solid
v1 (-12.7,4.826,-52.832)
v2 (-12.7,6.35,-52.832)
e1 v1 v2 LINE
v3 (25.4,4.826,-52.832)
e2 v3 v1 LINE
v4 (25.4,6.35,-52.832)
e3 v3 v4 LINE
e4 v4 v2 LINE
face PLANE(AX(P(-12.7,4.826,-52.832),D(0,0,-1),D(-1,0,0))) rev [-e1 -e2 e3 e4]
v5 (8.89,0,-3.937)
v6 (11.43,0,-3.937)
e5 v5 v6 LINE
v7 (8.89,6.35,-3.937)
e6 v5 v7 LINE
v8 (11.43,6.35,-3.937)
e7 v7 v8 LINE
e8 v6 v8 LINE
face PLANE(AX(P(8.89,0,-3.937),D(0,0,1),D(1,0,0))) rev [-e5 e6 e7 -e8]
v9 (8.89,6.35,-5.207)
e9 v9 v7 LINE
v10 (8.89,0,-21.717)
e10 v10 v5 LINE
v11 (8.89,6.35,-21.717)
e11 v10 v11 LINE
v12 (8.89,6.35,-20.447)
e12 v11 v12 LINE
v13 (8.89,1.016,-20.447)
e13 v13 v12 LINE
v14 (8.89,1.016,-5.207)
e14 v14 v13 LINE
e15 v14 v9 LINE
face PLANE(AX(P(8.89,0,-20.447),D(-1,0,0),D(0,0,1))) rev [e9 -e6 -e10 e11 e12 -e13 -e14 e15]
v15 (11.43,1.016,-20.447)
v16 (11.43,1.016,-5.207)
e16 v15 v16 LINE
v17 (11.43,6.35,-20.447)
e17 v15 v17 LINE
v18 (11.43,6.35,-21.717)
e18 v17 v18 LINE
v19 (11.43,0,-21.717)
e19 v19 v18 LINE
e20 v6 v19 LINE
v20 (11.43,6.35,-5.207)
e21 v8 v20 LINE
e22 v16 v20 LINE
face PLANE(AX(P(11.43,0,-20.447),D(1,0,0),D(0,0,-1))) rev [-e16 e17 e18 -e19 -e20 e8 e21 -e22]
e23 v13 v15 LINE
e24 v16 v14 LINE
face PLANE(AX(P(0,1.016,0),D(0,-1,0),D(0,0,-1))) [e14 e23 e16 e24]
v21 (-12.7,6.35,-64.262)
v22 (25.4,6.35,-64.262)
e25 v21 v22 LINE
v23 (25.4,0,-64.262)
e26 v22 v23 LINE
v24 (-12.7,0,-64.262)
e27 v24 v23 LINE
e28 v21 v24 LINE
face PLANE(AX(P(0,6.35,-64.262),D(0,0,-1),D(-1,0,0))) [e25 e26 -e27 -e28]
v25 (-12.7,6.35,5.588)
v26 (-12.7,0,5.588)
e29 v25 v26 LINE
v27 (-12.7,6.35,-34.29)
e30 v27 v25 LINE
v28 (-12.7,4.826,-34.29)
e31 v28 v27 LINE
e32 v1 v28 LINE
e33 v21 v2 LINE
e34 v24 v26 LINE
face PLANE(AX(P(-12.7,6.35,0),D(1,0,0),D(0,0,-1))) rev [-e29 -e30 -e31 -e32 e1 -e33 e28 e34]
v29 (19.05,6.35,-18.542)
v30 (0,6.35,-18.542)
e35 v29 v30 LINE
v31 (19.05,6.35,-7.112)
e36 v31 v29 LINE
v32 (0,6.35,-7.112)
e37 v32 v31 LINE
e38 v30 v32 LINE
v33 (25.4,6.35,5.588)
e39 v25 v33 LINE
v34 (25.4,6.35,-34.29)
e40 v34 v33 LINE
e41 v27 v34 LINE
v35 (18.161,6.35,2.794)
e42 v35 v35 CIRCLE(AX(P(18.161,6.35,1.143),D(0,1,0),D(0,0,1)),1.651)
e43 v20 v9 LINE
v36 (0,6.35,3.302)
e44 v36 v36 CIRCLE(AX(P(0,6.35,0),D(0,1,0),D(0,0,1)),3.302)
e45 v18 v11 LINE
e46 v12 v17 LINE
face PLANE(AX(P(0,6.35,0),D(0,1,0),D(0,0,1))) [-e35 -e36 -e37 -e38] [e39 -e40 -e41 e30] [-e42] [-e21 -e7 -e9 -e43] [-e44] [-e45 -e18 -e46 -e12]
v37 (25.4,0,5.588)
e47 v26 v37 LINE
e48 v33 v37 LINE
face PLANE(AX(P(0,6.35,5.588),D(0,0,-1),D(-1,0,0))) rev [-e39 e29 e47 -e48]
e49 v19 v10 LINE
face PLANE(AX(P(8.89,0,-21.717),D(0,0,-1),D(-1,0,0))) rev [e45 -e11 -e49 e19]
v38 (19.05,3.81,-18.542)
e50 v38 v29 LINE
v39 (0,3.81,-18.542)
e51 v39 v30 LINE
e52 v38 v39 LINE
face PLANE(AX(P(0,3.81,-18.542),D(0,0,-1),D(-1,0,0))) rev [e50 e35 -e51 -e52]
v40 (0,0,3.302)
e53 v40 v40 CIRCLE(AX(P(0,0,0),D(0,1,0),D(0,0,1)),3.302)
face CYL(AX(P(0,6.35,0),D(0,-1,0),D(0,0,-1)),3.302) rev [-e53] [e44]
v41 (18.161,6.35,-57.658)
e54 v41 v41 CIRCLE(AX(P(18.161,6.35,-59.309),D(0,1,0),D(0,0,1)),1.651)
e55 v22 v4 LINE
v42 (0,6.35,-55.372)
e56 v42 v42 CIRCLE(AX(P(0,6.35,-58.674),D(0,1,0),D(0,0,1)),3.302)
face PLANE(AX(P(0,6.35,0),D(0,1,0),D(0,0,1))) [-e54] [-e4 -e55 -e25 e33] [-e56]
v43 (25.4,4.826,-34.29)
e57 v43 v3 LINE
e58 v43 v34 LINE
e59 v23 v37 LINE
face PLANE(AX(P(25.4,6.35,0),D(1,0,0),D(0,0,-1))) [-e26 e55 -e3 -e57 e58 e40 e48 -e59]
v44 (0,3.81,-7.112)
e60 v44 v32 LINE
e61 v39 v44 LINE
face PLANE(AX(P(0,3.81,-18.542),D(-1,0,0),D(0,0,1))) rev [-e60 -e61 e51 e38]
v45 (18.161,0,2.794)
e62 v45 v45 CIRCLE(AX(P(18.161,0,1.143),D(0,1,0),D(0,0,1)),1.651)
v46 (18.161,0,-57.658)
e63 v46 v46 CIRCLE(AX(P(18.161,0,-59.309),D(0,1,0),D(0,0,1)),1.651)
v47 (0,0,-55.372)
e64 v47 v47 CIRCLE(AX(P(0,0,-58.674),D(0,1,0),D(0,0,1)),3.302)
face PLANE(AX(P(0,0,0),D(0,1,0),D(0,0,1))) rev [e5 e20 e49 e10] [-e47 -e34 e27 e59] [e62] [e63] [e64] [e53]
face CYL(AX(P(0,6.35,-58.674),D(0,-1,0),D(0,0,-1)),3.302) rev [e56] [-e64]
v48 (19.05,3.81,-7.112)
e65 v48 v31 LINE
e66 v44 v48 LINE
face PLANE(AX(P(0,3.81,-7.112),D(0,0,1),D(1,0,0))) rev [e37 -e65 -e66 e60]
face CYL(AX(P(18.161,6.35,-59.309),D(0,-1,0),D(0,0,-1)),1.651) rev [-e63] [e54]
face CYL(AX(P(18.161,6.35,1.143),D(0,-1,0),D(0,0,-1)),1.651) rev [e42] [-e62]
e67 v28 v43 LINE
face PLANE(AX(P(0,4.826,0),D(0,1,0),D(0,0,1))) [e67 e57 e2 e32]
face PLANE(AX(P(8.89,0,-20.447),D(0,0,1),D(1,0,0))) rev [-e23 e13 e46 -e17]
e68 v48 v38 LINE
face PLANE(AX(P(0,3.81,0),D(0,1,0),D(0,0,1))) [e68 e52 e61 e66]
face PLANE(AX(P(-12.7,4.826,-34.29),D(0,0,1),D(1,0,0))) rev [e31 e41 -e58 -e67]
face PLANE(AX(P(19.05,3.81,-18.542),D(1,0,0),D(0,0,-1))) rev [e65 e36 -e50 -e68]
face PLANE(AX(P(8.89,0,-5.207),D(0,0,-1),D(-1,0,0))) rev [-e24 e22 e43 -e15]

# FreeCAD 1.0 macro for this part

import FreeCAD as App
import Part
import Sketcher
Q = App.Units.Quantity

doc = App.newDocument("Part")
body = doc.addObject("PartDesign::Body", "Body")

# Sketch on XZ plane
sketch1 = body.newObject("Sketcher::SketchObject", "Sketch")
sketch1.AttachmentSupport = (doc.getObject("XZ_Plane"), [""])
sketch1.MapMode = "FlatFace"
sketch1.addGeometry(Part.LineSegment(App.Vector(-12.7, -64.3, 0), App.Vector(-12.7, 5.6, 0)), False)
sketch1.addGeometry(Part.LineSegment(App.Vector(-12.7, 5.6, 0), App.Vector(25.4, 5.6, 0)), False)
sketch1.addGeometry(Part.LineSegment(App.Vector(25.4, 5.6, 0), App.Vector(25.4, -64.3, 0)), False)
sketch1.addGeometry(Part.LineSegment(App.Vector(25.4, -64.3, 0), App.Vector(-12.7, -64.3, 0)), False)
sketch1.addGeometry(Part.Circle(App.Vector(0, 0, 0), App.Vector(0, 0, 1), 3.3), False)
sketch1.addGeometry(Part.Circle(App.Vector(18.2, 1.1, 0), App.Vector(0, 0, 1), 1.7), False)
sketch1.addGeometry(Part.Circle(App.Vector(0, -58.7, 0), App.Vector(0, 0, 1), 3.3), False)
sketch1.addGeometry(Part.Circle(App.Vector(18.2, -59.3, 0), App.Vector(0, 0, 1), 1.7), False)
sketch1.addConstraint(Sketcher.Constraint("Coincident", 0, 2, 1, 1))
sketch1.addConstraint(Sketcher.Constraint("Coincident", 1, 2, 2, 1))
sketch1.addConstraint(Sketcher.Constraint("Coincident", 2, 2, 3, 1))
sketch1.addConstraint(Sketcher.Constraint("Coincident", 3, 2, 0, 1))
sketch1.addConstraint(Sketcher.Constraint("Vertical", 0))
sketch1.addConstraint(Sketcher.Constraint("Horizontal", 1))
sketch1.addConstraint(Sketcher.Constraint("Vertical", 2))
sketch1.addConstraint(Sketcher.Constraint("Horizontal", 3))
sketch1.addConstraint(Sketcher.Constraint("Coincident", 4, 3, -1, 1))
sketch1.addConstraint(Sketcher.Constraint("Equal", 4, 6))
sketch1.addConstraint(Sketcher.Constraint("Equal", 5, 7))
sketch1.addConstraint(Sketcher.Constraint("PointOnObject", 6, 3, -2))
sketch1.addConstraint(Sketcher.Constraint("Vertical", 5, 3, 7, 3))
sketch1.addConstraint(Sketcher.Constraint("Diameter", 4, Q("0.26 in")))
sketch1.addConstraint(Sketcher.Constraint("Diameter", 5, Q("0.13 in")))
sketch1.addConstraint(Sketcher.Constraint("DistanceX", 1, 1, 1, 2, Q("1.5 in")))
sketch1.addConstraint(Sketcher.Constraint("DistanceX", -1, 1, 1, 2, Q("1 in")))
sketch1.addConstraint(Sketcher.Constraint("DistanceY", 0, 1, 0, 2, Q("2.75 in")))
sketch1.addConstraint(Sketcher.Constraint("DistanceY", 6, 3, -1, 1, Q("2.31 in")))
sketch1.addConstraint(Sketcher.Constraint("DistanceY", -1, 1, 0, 2, Q("0.22 in")))
sketch1.addConstraint(Sketcher.Constraint("DistanceY", 7, 3, 5, 3, Q("2.38 in")))
sketch1.addConstraint(Sketcher.Constraint("DistanceX", -1, 1, 5, 3, Q("0.715 in")))
sketch1.addConstraint(Sketcher.Constraint("DistanceY", -1, 1, 5, 3, Q("0.045 in")))
pad1 = body.newObject("PartDesign::Pad", "Pad")
pad1.Profile = sketch1
pad1.Length = Q("0.25 in")
pad1.Reversed = True

# Sketch on XZ plane
sketch2 = body.newObject("Sketcher::SketchObject", "Sketch001")
sketch2.AttachmentSupport = (doc.getObject("XZ_Plane"), [""])
sketch2.MapMode = "FlatFace"
sketch2.AttachmentOffset = App.Placement(App.Vector(0, 0, -0.25 * 25.4), App.Rotation())
sketch2.addGeometry(Part.LineSegment(App.Vector(0, -19, 0), App.Vector(0, -7, 0)), False)
sketch2.addGeometry(Part.LineSegment(App.Vector(0, -7, 0), App.Vector(19, -7, 0)), False)
sketch2.addGeometry(Part.LineSegment(App.Vector(19, -7, 0), App.Vector(19, -19, 0)), False)
sketch2.addGeometry(Part.LineSegment(App.Vector(19, -19, 0), App.Vector(0, -19, 0)), False)
sketch2.addConstraint(Sketcher.Constraint("Coincident", 0, 2, 1, 1))
sketch2.addConstraint(Sketcher.Constraint("Coincident", 1, 2, 2, 1))
sketch2.addConstraint(Sketcher.Constraint("Coincident", 2, 2, 3, 1))
sketch2.addConstraint(Sketcher.Constraint("Coincident", 3, 2, 0, 1))
sketch2.addConstraint(Sketcher.Constraint("Vertical", 0))
sketch2.addConstraint(Sketcher.Constraint("Horizontal", 1))
sketch2.addConstraint(Sketcher.Constraint("Vertical", 2))
sketch2.addConstraint(Sketcher.Constraint("Horizontal", 3))
sketch2.addConstraint(Sketcher.Constraint("PointOnObject", 0, 2, -2))
sketch2.addConstraint(Sketcher.Constraint("DistanceX", 1, 1, 1, 2, Q("0.75 in")))
sketch2.addConstraint(Sketcher.Constraint("DistanceY", 0, 1, 0, 2, Q("0.45 in")))
sketch2.addConstraint(Sketcher.Constraint("DistanceY", 0, 2, -1, 1, Q("0.28 in")))
pocket1 = body.newObject("PartDesign::Pocket", "Pocket")
pocket1.Profile = sketch2
pocket1.Length = Q("0.1 in")
pocket1.Reversed = True

# Sketch on XZ plane
sketch3 = body.newObject("Sketcher::SketchObject", "Sketch002")
sketch3.AttachmentSupport = (doc.getObject("XZ_Plane"), [""])
sketch3.MapMode = "FlatFace"
sketch3.AttachmentOffset = App.Placement(App.Vector(0, 0, -0.25 * 25.4), App.Rotation())
sketch3.addGeometry(Part.LineSegment(App.Vector(8.9, -21.7, 0), App.Vector(8.9, -20.4, 0)), False)
sketch3.addGeometry(Part.LineSegment(App.Vector(8.9, -20.4, 0), App.Vector(11.4, -20.4, 0)), False)
sketch3.addGeometry(Part.LineSegment(App.Vector(11.4, -20.4, 0), App.Vector(11.4, -21.7, 0)), False)
sketch3.addGeometry(Part.LineSegment(App.Vector(11.4, -21.7, 0), App.Vector(8.9, -21.7, 0)), False)
sketch3.addGeometry(Part.LineSegment(App.Vector(8.9, -5.2, 0), App.Vector(8.9, -3.9, 0)), False)
sketch3.addGeometry(Part.LineSegment(App.Vector(8.9, -3.9, 0), App.Vector(11.4, -3.9, 0)), False)
sketch3.addGeometry(Part.LineSegment(App.Vector(11.4, -3.9, 0), App.Vector(11.4, -5.2, 0)), False)
sketch3.addGeometry(Part.LineSegment(App.Vector(11.4, -5.2, 0), App.Vector(8.9, -5.2, 0)), False)
sketch3.addConstraint(Sketcher.Constraint("Coincident", 0, 2, 1, 1))
sketch3.addConstraint(Sketcher.Constraint("Coincident", 1, 2, 2, 1))
sketch3.addConstraint(Sketcher.Constraint("Coincident", 2, 2, 3, 1))
sketch3.addConstraint(Sketcher.Constraint("Coincident", 3, 2, 0, 1))
sketch3.addConstraint(Sketcher.Constraint("Coincident", 4, 2, 5, 1))
sketch3.addConstraint(Sketcher.Constraint("Coincident", 5, 2, 6, 1))
sketch3.addConstraint(Sketcher.Constraint("Coincident", 6, 2, 7, 1))
sketch3.addConstraint(Sketcher.Constraint("Coincident", 7, 2, 4, 1))
sketch3.addConstraint(Sketcher.Constraint("Vertical", 0))
sketch3.addConstraint(Sketcher.Constraint("Horizontal", 1))
sketch3.addConstraint(Sketcher.Constraint("Vertical", 2))
sketch3.addConstraint(Sketcher.Constraint("Horizontal", 3))
sketch3.addConstraint(Sketcher.Constraint("Vertical", 4))
sketch3.addConstraint(Sketcher.Constraint("Horizontal", 5))
sketch3.addConstraint(Sketcher.Constraint("Vertical", 6))
sketch3.addConstraint(Sketcher.Constraint("Horizontal", 7))
sketch3.addConstraint(Sketcher.Constraint("Vertical", 3, 2, 4, 2))
sketch3.addConstraint(Sketcher.Constraint("Vertical", 2, 2, 5, 2))
sketch3.addConstraint(Sketcher.Constraint("Equal", 2, 4))
sketch3.addConstraint(Sketcher.Constraint("DistanceX", 1, 1, 1, 2, Q("0.1 in")))
sketch3.addConstraint(Sketcher.Constraint("DistanceY", 0, 1, 0, 2, Q("0.05 in")))
sketch3.addConstraint(Sketcher.Constraint("DistanceY", 3, 2, 4, 2, Q("0.7 in")))
sketch3.addConstraint(Sketcher.Constraint("DistanceX", -1, 1, 0, 2, Q("0.35 in")))
sketch3.addConstraint(Sketcher.Constraint("DistanceY", 0, 2, -1, 1, Q("0.805 in")))
pocket2 = body.newObject("PartDesign::Pocket", "Pocket001")
pocket2.Profile = sketch3
pocket2.Type = "ThroughAll"
pocket2.Midplane = True

# Sketch on XZ plane
sketch4 = body.newObject("Sketcher::SketchObject", "Sketch003")
sketch4.AttachmentSupport = (doc.getObject("XZ_Plane"), [""])
sketch4.MapMode = "FlatFace"
sketch4.addGeometry(Part.LineSegment(App.Vector(8.9, -5.2, 0), App.Vector(8.9, -20.4, 0)), False)
sketch4.addGeometry(Part.LineSegment(App.Vector(8.9, -20.4, 0), App.Vector(11.4, -20.4, 0)), False)
sketch4.addGeometry(Part.LineSegment(App.Vector(11.4, -20.4, 0), App.Vector(11.4, -5.2, 0)), False)
sketch4.addGeometry(Part.LineSegment(App.Vector(11.4, -5.2, 0), App.Vector(8.9, -5.2, 0)), False)
sketch4.addConstraint(Sketcher.Constraint("Coincident", 0, 2, 1, 1))
sketch4.addConstraint(Sketcher.Constraint("Coincident", 1, 2, 2, 1))
sketch4.addConstraint(Sketcher.Constraint("Coincident", 2, 2, 3, 1))
sketch4.addConstraint(Sketcher.Constraint("Coincident", 3, 2, 0, 1))
sketch4.addConstraint(Sketcher.Constraint("Vertical", 0))
sketch4.addConstraint(Sketcher.Constraint("Horizontal", 1))
sketch4.addConstraint(Sketcher.Constraint("Vertical", 2))
sketch4.addConstraint(Sketcher.Constraint("Horizontal", 3))
sketch4.addConstraint(Sketcher.Constraint("DistanceX", 1, 1, 1, 2, Q("0.1 in")))
sketch4.addConstraint(Sketcher.Constraint("DistanceY", 0, 2, 0, 1, Q("0.6 in")))
sketch4.addConstraint(Sketcher.Constraint("DistanceX", -1, 1, 0, 2, Q("0.35 in")))
sketch4.addConstraint(Sketcher.Constraint("DistanceY", 0, 2, -1, 1, Q("0.805 in")))
pocket3 = body.newObject("PartDesign::Pocket", "Pocket002")
pocket3.Profile = sketch4
pocket3.Length = Q("0.04 in")

# Sketch on XZ plane
sketch5 = body.newObject("Sketcher::SketchObject", "Sketch004")
sketch5.AttachmentSupport = (doc.getObject("XZ_Plane"), [""])
sketch5.MapMode = "FlatFace"
sketch5.AttachmentOffset = App.Placement(App.Vector(0, 0, -0.25 * 25.4), App.Rotation())
sketch5.addGeometry(Part.LineSegment(App.Vector(-13, -53, 0), App.Vector(-13, -34, 0)), False)
sketch5.addGeometry(Part.LineSegment(App.Vector(-13, -34, 0), App.Vector(25, -34, 0)), False)
sketch5.addGeometry(Part.LineSegment(App.Vector(25, -34, 0), App.Vector(25, -53, 0)), False)
sketch5.addGeometry(Part.LineSegment(App.Vector(25, -53, 0), App.Vector(-13, -53, 0)), False)
sketch5.addConstraint(Sketcher.Constraint("Coincident", 0, 2, 1, 1))
sketch5.addConstraint(Sketcher.Constraint("Coincident", 1, 2, 2, 1))
sketch5.addConstraint(Sketcher.Constraint("Coincident", 2, 2, 3, 1))
sketch5.addConstraint(Sketcher.Constraint("Coincident", 3, 2, 0, 1))
sketch5.addConstraint(Sketcher.Constraint("Vertical", 0))
sketch5.addConstraint(Sketcher.Constraint("Horizontal", 1))
sketch5.addConstraint(Sketcher.Constraint("Vertical", 2))
sketch5.addConstraint(Sketcher.Constraint("Horizontal", 3))
sketch5.addConstraint(Sketcher.Constraint("DistanceX", 1, 1, 1, 2, Q("1.5 in")))
sketch5.addConstraint(Sketcher.Constraint("DistanceX", -1, 1, 1, 2, Q("1 in")))
sketch5.addConstraint(Sketcher.Constraint("DistanceY", 0, 1, 0, 2, Q("0.73 in")))
sketch5.addConstraint(Sketcher.Constraint("DistanceY", 0, 2, -1, 1, Q("1.35 in")))
pocket4 = body.newObject("PartDesign::Pocket", "Pocket003")
pocket4.Profile = sketch5
pocket4.Length = Q("0.06 in")
pocket4.Reversed = True

doc.recompute()
